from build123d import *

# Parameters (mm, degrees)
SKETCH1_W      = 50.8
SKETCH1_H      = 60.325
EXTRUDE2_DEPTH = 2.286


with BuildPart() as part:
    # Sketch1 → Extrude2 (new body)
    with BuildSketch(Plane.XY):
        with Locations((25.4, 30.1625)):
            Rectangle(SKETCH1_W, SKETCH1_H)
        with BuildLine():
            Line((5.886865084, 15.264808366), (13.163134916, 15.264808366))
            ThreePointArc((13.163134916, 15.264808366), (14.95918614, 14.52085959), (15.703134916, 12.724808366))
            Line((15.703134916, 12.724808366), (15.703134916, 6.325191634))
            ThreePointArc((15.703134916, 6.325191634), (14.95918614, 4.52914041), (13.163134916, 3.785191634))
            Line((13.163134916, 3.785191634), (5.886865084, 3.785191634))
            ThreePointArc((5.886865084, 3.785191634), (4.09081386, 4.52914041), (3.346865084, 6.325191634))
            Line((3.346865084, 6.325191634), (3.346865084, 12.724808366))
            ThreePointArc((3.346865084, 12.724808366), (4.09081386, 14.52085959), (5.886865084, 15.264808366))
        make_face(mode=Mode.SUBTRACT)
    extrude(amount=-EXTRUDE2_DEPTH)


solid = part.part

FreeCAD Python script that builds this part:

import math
import FreeCAD as App
import Part
import Sketcher
Q = App.Units.Quantity


def add_polygon(sketch, points):
    """Adds a closed chain of lines whose ends are joined by coincident constraints."""
    first, n = sketch.GeometryCount, len(points)
    for a, b in zip(points, points[1:] + points[:1]):
        sketch.addGeometry(Part.LineSegment(App.Vector(*a, 0), App.Vector(*b, 0)), False)
    for i in range(n):
        sketch.addConstraint(Sketcher.Constraint("Coincident", first + i, 2, first + (i + 1) % n, 1))

doc = App.newDocument("Part")
body = doc.addObject("PartDesign::Body", "Body")

sketch1 = body.newObject("Sketcher::SketchObject", "Sketch")
sketch1.AttachmentSupport = (doc.getObject("XY_Plane"), [""])
sketch1.MapMode = "FlatFace"
add_polygon(sketch1, [(0, 60.325), (0, 0), (50.8, 0), (50.8, 60.325)])
sketch1.addGeometry(Part.ArcOfCircle(Part.Circle(App.Vector(5.886865, 12.724808, 0), App.Vector(0, 0, 1), 2.54), math.radians(90), math.radians(180)), False)
sketch1.addGeometry(Part.LineSegment(App.Vector(5.886865, 15.264808, 0), App.Vector(13.163135, 15.264808, 0)), False)
sketch1.addGeometry(Part.ArcOfCircle(Part.Circle(App.Vector(13.163135, 12.724808, 0), App.Vector(0, 0, 1), 2.54), math.radians(0), math.radians(90)), False)
sketch1.addGeometry(Part.LineSegment(App.Vector(15.703135, 12.724808, 0), App.Vector(15.703135, 6.325192, 0)), False)
sketch1.addGeometry(Part.ArcOfCircle(Part.Circle(App.Vector(13.163135, 6.325192, 0), App.Vector(0, 0, 1), 2.54), math.radians(-90), math.radians(0)), False)
sketch1.addGeometry(Part.LineSegment(App.Vector(13.163135, 3.785192, 0), App.Vector(5.886865, 3.785192, 0)), False)
sketch1.addGeometry(Part.ArcOfCircle(Part.Circle(App.Vector(5.886865, 6.325192, 0), App.Vector(0, 0, 1), 2.54), math.radians(-180), math.radians(-90)), False)
sketch1.addGeometry(Part.LineSegment(App.Vector(3.346865, 6.325192, 0), App.Vector(3.346865, 12.724808, 0)), False)
sketch1.addConstraint([
    Sketcher.Constraint("Tangent", 4, 1, 5, 1),
    Sketcher.Constraint("Tangent", 5, 2, 6, 2),
    Sketcher.Constraint("Tangent", 6, 1, 7, 1),
    Sketcher.Constraint("Tangent", 7, 2, 8, 2),
    Sketcher.Constraint("Tangent", 8, 1, 9, 1),
    Sketcher.Constraint("Tangent", 9, 2, 10, 2),
    Sketcher.Constraint("Tangent", 10, 1, 11, 1),
    Sketcher.Constraint("Tangent", 11, 2, 4, 2),
    Sketcher.Constraint("Vertical", 0),
    Sketcher.Constraint("Horizontal", 1),
    Sketcher.Constraint("Vertical", 2),
    Sketcher.Constraint("Horizontal", 3),
    Sketcher.Constraint("Horizontal", 5),
    Sketcher.Constraint("Vertical", 7),
    Sketcher.Constraint("Horizontal", 9),
    Sketcher.Constraint("Vertical", 11),
    Sketcher.Constraint("Coincident", 0, 2, -1, 1),
    Sketcher.Constraint("Equal", 4, 6),
    Sketcher.Constraint("Equal", 6, 8),
    Sketcher.Constraint("Equal", 8, 10),
    Sketcher.Constraint("Radius", 4, Q("0.1 in")),
    Sketcher.Constraint("DistanceX", 1, 1, 1, 2, Q("2 in")),
    Sketcher.Constraint("DistanceY", 0, 2, 0, 1, Q("2.375 in")),
    Sketcher.Constraint("DistanceX", 5, 1, 5, 2, 7.27627),
    Sketcher.Constraint("DistanceY", 7, 2, 7, 1, 6.399617),
    Sketcher.Constraint("DistanceY", -1, 1, 4, 3, 12.724808),
    Sketcher.Constraint("DistanceX", -1, 1, 4, 3, 5.886865),
])
pad1 = body.newObject("PartDesign::Pad", "Pad")
pad1.Profile = sketch1
pad1.Length = Q("0.09 in")
pad1.Reversed = True

doc.recompute()
